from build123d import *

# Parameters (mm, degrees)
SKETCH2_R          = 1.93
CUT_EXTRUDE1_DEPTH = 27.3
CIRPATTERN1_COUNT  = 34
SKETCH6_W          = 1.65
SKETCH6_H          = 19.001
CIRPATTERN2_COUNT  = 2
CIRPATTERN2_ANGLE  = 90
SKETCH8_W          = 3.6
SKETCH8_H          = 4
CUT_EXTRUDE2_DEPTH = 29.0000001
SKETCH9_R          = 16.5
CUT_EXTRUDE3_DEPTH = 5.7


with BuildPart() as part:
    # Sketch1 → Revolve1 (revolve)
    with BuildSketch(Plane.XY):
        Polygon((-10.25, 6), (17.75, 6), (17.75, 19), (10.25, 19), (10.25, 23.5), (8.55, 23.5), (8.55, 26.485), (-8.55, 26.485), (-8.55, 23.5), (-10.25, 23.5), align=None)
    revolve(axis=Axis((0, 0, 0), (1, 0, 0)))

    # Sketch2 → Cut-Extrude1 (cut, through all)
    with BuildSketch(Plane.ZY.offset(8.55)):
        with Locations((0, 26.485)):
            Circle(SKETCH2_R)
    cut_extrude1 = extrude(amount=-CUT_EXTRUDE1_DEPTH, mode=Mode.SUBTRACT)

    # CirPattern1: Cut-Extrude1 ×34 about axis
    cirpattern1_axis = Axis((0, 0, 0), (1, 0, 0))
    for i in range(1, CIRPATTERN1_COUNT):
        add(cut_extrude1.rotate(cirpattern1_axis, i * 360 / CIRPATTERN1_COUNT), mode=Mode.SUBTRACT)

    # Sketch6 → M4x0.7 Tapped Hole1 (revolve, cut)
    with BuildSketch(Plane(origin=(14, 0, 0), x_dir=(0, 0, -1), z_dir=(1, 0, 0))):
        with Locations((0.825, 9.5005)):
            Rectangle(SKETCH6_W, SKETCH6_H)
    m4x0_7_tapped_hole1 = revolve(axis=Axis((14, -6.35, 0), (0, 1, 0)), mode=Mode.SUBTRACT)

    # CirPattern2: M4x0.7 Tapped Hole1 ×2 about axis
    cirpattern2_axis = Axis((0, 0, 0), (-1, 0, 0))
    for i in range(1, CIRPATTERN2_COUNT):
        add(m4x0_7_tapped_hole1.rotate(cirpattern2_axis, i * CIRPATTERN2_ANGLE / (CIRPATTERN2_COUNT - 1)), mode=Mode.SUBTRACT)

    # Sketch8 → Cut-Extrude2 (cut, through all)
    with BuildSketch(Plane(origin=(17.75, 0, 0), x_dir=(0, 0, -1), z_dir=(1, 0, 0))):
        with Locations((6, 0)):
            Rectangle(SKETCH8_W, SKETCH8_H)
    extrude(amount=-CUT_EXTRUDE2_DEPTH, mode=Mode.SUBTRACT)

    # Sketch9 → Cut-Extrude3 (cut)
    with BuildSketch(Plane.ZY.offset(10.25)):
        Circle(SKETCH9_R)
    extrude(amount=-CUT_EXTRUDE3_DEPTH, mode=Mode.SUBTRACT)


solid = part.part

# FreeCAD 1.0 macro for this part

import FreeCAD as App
import Part
import Sketcher
from FreeCAD import Vector

doc = App.newDocument("Part")
body = doc.addObject("PartDesign::Body", "Body")

sketch1 = body.newObject("Sketcher::SketchObject", "Sketch")
sketch1.AttachmentSupport = (doc.getObject("XY_Plane"), [""])
sketch1.MapMode = "FlatFace"
sketch1.addGeometry(Part.LineSegment(Vector(-10.2, 6, 0), Vector(17.8, 6, 0)), False)
sketch1.addGeometry(Part.LineSegment(Vector(17.8, 6, 0), Vector(17.8, 19, 0)), False)
sketch1.addGeometry(Part.LineSegment(Vector(17.8, 19, 0), Vector(10.2, 19, 0)), False)
sketch1.addGeometry(Part.LineSegment(Vector(10.2, 19, 0), Vector(10.2, 23.5, 0)), False)
sketch1.addGeometry(Part.LineSegment(Vector(10.2, 23.5, 0), Vector(8.6, 23.5, 0)), False)
sketch1.addGeometry(Part.LineSegment(Vector(8.6, 23.5, 0), Vector(8.6, 26.5, 0)), False)
sketch1.addGeometry(Part.LineSegment(Vector(8.6, 26.5, 0), Vector(-8.6, 26.5, 0)), False)
sketch1.addGeometry(Part.LineSegment(Vector(-8.6, 26.5, 0), Vector(-8.6, 23.5, 0)), False)
sketch1.addGeometry(Part.LineSegment(Vector(-8.6, 23.5, 0), Vector(-10.2, 23.5, 0)), False)
sketch1.addGeometry(Part.LineSegment(Vector(-10.2, 23.5, 0), Vector(-10.2, 6, 0)), False)
sketch1.addConstraint(Sketcher.Constraint("Coincident", 0, 2, 1, 1))
sketch1.addConstraint(Sketcher.Constraint("Coincident", 1, 2, 2, 1))
sketch1.addConstraint(Sketcher.Constraint("Coincident", 2, 2, 3, 1))
sketch1.addConstraint(Sketcher.Constraint("Coincident", 3, 2, 4, 1))
sketch1.addConstraint(Sketcher.Constraint("Coincident", 4, 2, 5, 1))
sketch1.addConstraint(Sketcher.Constraint("Coincident", 5, 2, 6, 1))
sketch1.addConstraint(Sketcher.Constraint("Coincident", 6, 2, 7, 1))
sketch1.addConstraint(Sketcher.Constraint("Coincident", 7, 2, 8, 1))
sketch1.addConstraint(Sketcher.Constraint("Coincident", 8, 2, 9, 1))
sketch1.addConstraint(Sketcher.Constraint("Coincident", 9, 2, 0, 1))
sketch1.addConstraint(Sketcher.Constraint("Horizontal", 0))
sketch1.addConstraint(Sketcher.Constraint("Vertical", 1))
sketch1.addConstraint(Sketcher.Constraint("Horizontal", 2))
sketch1.addConstraint(Sketcher.Constraint("Vertical", 3))
sketch1.addConstraint(Sketcher.Constraint("Horizontal", 4))
sketch1.addConstraint(Sketcher.Constraint("Vertical", 5))
sketch1.addConstraint(Sketcher.Constraint("Horizontal", 6))
sketch1.addConstraint(Sketcher.Constraint("Vertical", 7))
sketch1.addConstraint(Sketcher.Constraint("Horizontal", 8))
sketch1.addConstraint(Sketcher.Constraint("Vertical", 9))
sketch1.addConstraint(Sketcher.Constraint("Symmetric", 4, 2, 7, 2, -2))
sketch1.addConstraint(Sketcher.Constraint("Equal", 4, 8))
sketch1.addConstraint(Sketcher.Constraint("DistanceX", 0, 1, 0, 2, 28.0))
sketch1.addConstraint(Sketcher.Constraint("DistanceY", 1, 1, 1, 2, 13.0))
sketch1.addConstraint(Sketcher.Constraint("DistanceX", 2, 2, 2, 1, 7.5))
sketch1.addConstraint(Sketcher.Constraint("DistanceX", 4, 2, 4, 1, 1.7))
sketch1.addConstraint(Sketcher.Constraint("DistanceY", 3, 1, 3, 2, 4.5))
sketch1.addConstraint(Sketcher.Constraint("DistanceY", -1, 1, 0, 2, 6.0))
sketch1.addConstraint(Sketcher.Constraint("DistanceY", 5, 1, 5, 2, 2.985))
revolution = body.newObject("PartDesign::Revolution", "Revolution")
revolution.Profile = sketch1
revolution.ReferenceAxis = (sketch1, ["H_Axis"])
revolution.Angle = 360

sketch2 = body.newObject("Sketcher::SketchObject", "Sketch001")
sketch2.AttachmentSupport = (doc.getObject("YZ_Plane"), [""])
sketch2.MapMode = "FlatFace"
sketch2.AttachmentOffset = App.Placement(Vector(0, 0, -8.55), App.Rotation())
sketch2.addGeometry(Part.Circle(Vector(26.5, 0, 0), Vector(0, 0, 1), 1.9), False)
sketch2.addConstraint(Sketcher.Constraint("PointOnObject", 0, 3, -1))
sketch2.addConstraint(Sketcher.Constraint("Diameter", 0, 3.86))
sketch2.addConstraint(Sketcher.Constraint("DistanceX", -1, 1, 0, 3, 26.485))
pocket1 = body.newObject("PartDesign::Pocket", "Pocket")
pocket1.Profile = sketch2
pocket1.Type = "ThroughAll"
pocket1.Reversed = True
doc.recompute()

polarpattern = body.newObject("PartDesign::PolarPattern", "PolarPattern")
polarpattern.Originals = [pocket1]
polarpattern.Axis = (doc.getObject("X_Axis"), [""])
polarpattern.Angle = 360
polarpattern.Occurrences = 34
body.Tip = polarpattern

sketch3 = body.newObject("Sketcher::SketchObject", "Sketch002")
sketch3.AttachmentSupport = (doc.getObject("YZ_Plane"), [""])
sketch3.MapMode = "FlatFace"
sketch3.AttachmentOffset = App.Placement(Vector(0, 0, 14), App.Rotation())
sketch3.addGeometry(Part.LineSegment(Vector(19, 0, 0), Vector(0, 0, 0)), False)
sketch3.addGeometry(Part.LineSegment(Vector(0, 0, 0), Vector(0, -1.6, 0)), False)
sketch3.addGeometry(Part.LineSegment(Vector(0, -1.6, 0), Vector(19, -1.6, 0)), False)
sketch3.addGeometry(Part.LineSegment(Vector(19, -1.6, 0), Vector(19, 0, 0)), False)
sketch3.addConstraint(Sketcher.Constraint("Coincident", 0, 2, 1, 1))
sketch3.addConstraint(Sketcher.Constraint("Coincident", 1, 2, 2, 1))
sketch3.addConstraint(Sketcher.Constraint("Coincident", 2, 2, 3, 1))
sketch3.addConstraint(Sketcher.Constraint("Coincident", 3, 2, 0, 1))
sketch3.addConstraint(Sketcher.Constraint("Horizontal", 0))
sketch3.addConstraint(Sketcher.Constraint("Vertical", 1))
sketch3.addConstraint(Sketcher.Constraint("Horizontal", 2))
sketch3.addConstraint(Sketcher.Constraint("Vertical", 3))
sketch3.addConstraint(Sketcher.Constraint("Coincident", 0, 2, -1, 1))
sketch3.addConstraint(Sketcher.Constraint("DistanceY", 1, 2, 1, 1, 1.65))
sketch3.addConstraint(Sketcher.Constraint("DistanceX", 0, 2, 0, 1, 19.001))
groove = body.newObject("PartDesign::Groove", "Groove")
groove.Profile = sketch3
groove.ReferenceAxis = (sketch3, ["H_Axis"])
groove.Angle = 360
doc.recompute()

polarpattern2 = body.newObject("PartDesign::PolarPattern", "PolarPattern001")
polarpattern2.Originals = [groove]
polarpattern2.Axis = (doc.getObject("X_Axis"), [""])
polarpattern2.Angle = 90
polarpattern2.Occurrences = 2
polarpattern2.Reversed = True
body.Tip = polarpattern2

sketch4 = body.newObject("Sketcher::SketchObject", "Sketch003")
sketch4.AttachmentSupport = (doc.getObject("YZ_Plane"), [""])
sketch4.MapMode = "FlatFace"
sketch4.AttachmentOffset = App.Placement(Vector(0, 0, 17.75), App.Rotation())
sketch4.addGeometry(Part.LineSegment(Vector(2, -4.2, 0), Vector(-2, -4.2, 0)), False)
sketch4.addGeometry(Part.LineSegment(Vector(-2, -4.2, 0), Vector(-2, -7.8, 0)), False)
sketch4.addGeometry(Part.LineSegment(Vector(-2, -7.8, 0), Vector(2, -7.8, 0)), False)
sketch4.addGeometry(Part.LineSegment(Vector(2, -7.8, 0), Vector(2, -4.2, 0)), False)
sketch4.addConstraint(Sketcher.Constraint("Coincident", 0, 2, 1, 1))
sketch4.addConstraint(Sketcher.Constraint("Coincident", 1, 2, 2, 1))
sketch4.addConstraint(Sketcher.Constraint("Coincident", 2, 2, 3, 1))
sketch4.addConstraint(Sketcher.Constraint("Coincident", 3, 2, 0, 1))
sketch4.addConstraint(Sketcher.Constraint("Horizontal", 0))
sketch4.addConstraint(Sketcher.Constraint("Vertical", 1))
sketch4.addConstraint(Sketcher.Constraint("Horizontal", 2))
sketch4.addConstraint(Sketcher.Constraint("Vertical", 3))
sketch4.addConstraint(Sketcher.Constraint("DistanceX", 0, 2, 0, 1, 4.0))
sketch4.addConstraint(Sketcher.Constraint("DistanceY", 1, 2, 1, 1, 3.6))
sketch4.addConstraint(Sketcher.Constraint("DistanceX", 0, 2, -1, 1, 2.0))
sketch4.addConstraint(Sketcher.Constraint("DistanceY", 0, 2, -1, 1, 4.2))
pocket2 = body.newObject("PartDesign::Pocket", "Pocket001")
pocket2.Profile = sketch4
pocket2.Type = "ThroughAll"

sketch5 = body.newObject("Sketcher::SketchObject", "Sketch004")
sketch5.AttachmentSupport = (doc.getObject("YZ_Plane"), [""])
sketch5.MapMode = "FlatFace"
sketch5.AttachmentOffset = App.Placement(Vector(0, 0, -10.25), App.Rotation())
sketch5.addGeometry(Part.Circle(Vector(0, 0, 0), Vector(0, 0, 1), 16), False)
sketch5.addConstraint(Sketcher.Constraint("Coincident", 0, 3, -1, 1))
sketch5.addConstraint(Sketcher.Constraint("Diameter", 0, 33.0))
pocket3 = body.newObject("PartDesign::Pocket", "Pocket002")
pocket3.Profile = sketch5
pocket3.Length = 5.7
pocket3.Reversed = True

doc.recompute()
